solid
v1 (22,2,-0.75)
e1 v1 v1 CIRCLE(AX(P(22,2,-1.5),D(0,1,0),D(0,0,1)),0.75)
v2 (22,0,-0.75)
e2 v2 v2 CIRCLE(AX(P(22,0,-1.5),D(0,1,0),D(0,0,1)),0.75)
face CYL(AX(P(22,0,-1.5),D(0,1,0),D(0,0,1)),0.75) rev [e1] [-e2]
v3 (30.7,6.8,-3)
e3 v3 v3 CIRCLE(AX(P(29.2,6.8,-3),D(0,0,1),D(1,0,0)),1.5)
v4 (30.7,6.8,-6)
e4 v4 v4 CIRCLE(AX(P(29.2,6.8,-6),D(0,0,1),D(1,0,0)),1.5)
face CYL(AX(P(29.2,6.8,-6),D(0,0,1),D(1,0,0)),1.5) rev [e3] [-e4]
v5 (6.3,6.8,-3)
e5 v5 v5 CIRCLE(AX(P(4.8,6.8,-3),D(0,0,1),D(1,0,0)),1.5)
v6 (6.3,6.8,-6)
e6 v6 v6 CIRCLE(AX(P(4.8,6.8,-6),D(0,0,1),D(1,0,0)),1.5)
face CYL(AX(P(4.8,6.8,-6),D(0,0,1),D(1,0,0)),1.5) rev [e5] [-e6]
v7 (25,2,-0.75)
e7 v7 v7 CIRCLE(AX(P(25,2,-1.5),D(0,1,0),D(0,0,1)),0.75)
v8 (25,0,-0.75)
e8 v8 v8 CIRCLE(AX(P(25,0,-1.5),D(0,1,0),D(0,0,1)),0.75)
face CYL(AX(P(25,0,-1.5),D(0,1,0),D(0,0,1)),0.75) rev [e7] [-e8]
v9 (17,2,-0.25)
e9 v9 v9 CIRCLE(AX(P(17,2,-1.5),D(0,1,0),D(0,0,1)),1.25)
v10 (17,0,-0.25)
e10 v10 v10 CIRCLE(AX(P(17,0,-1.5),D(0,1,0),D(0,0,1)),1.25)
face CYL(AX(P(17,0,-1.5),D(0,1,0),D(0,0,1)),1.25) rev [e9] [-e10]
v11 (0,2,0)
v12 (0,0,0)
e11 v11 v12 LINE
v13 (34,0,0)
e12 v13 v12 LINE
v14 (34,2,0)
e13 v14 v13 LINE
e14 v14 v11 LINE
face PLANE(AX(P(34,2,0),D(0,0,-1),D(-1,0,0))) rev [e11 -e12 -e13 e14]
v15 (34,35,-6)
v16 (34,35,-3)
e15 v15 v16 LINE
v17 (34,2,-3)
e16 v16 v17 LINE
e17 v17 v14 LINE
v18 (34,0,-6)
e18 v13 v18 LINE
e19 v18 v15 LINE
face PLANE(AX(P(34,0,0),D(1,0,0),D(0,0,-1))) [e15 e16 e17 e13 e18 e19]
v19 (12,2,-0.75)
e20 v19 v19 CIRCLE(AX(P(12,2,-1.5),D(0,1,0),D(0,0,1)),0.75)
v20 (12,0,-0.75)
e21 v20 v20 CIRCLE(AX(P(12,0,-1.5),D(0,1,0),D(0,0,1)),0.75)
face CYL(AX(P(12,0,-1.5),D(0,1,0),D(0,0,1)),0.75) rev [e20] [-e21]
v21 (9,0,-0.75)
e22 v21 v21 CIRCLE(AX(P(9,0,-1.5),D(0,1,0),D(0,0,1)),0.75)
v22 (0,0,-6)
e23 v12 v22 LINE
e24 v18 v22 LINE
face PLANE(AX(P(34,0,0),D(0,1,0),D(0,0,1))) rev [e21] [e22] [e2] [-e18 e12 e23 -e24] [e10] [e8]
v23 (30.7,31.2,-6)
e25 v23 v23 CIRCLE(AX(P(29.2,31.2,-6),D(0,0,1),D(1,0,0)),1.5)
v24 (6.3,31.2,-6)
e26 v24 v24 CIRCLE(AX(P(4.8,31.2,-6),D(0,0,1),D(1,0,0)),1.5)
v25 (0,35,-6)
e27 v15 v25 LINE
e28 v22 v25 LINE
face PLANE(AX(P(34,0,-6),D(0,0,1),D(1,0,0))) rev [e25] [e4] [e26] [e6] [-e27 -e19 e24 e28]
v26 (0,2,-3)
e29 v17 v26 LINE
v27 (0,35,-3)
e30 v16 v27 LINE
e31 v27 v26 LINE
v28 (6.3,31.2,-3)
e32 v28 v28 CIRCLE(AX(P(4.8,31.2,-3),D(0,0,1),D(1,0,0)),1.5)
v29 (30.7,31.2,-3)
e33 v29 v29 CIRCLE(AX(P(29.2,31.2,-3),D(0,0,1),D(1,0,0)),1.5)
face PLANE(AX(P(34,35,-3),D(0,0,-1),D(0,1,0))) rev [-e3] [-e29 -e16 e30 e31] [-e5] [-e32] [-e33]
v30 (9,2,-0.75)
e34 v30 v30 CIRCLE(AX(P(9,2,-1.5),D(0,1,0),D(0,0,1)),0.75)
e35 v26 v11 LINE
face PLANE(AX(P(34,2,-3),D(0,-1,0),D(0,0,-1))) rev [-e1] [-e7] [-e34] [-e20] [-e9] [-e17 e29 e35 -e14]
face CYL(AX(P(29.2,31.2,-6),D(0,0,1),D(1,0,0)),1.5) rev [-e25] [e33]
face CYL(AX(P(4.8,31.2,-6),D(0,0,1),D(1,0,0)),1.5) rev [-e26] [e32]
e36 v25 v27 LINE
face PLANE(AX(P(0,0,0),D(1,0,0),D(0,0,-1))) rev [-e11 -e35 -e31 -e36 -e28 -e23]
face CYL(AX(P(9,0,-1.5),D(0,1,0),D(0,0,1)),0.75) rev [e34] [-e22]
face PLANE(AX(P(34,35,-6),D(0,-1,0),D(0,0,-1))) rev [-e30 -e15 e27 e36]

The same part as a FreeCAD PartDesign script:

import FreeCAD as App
import Part
import Sketcher
Q = App.Units.Quantity

doc = App.newDocument("Part")
body = doc.addObject("PartDesign::Body", "Body")

sketch1 = body.newObject("Sketcher::SketchObject", "Sketch")
sketch1.AttachmentSupport = (doc.getObject("YZ_Plane"), [""])
sketch1.MapMode = "FlatFace"
sketch1.addGeometry([
    Part.LineSegment(App.Vector(0, 0, 0), App.Vector(0, -6, 0)),
    Part.LineSegment(App.Vector(0, -6, 0), App.Vector(35, -6, 0)),
    Part.LineSegment(App.Vector(35, -6, 0), App.Vector(35, -3, 0)),
    Part.LineSegment(App.Vector(35, -3, 0), App.Vector(2, -3, 0)),
    Part.LineSegment(App.Vector(2, -3, 0), App.Vector(2, 0, 0)),
    Part.LineSegment(App.Vector(2, 0, 0), App.Vector(0, 0, 0)),
], False)
sketch1.addConstraint([
    Sketcher.Constraint("Coincident", 0, 2, 1, 1),
    Sketcher.Constraint("Coincident", 1, 2, 2, 1),
    Sketcher.Constraint("Coincident", 2, 2, 3, 1),
    Sketcher.Constraint("Coincident", 3, 2, 4, 1),
    Sketcher.Constraint("Coincident", 4, 2, 5, 1),
    Sketcher.Constraint("Coincident", 5, 2, 0, 1),
    Sketcher.Constraint("Vertical", 0),
    Sketcher.Constraint("Horizontal", 1),
    Sketcher.Constraint("Vertical", 2),
    Sketcher.Constraint("Horizontal", 3),
    Sketcher.Constraint("Vertical", 4),
    Sketcher.Constraint("Horizontal", 5),
    Sketcher.Constraint("Coincident", 5, 2, -1, 1),
    Sketcher.Constraint("Equal", 2, 4),
    Sketcher.Constraint("DistanceX", 1, 1, 1, 2, Q("35 mm")),
    Sketcher.Constraint("DistanceX", 3, 2, 3, 1, Q("33 mm")),
    Sketcher.Constraint("DistanceY", 0, 2, 0, 1, Q("6 mm")),
])
pad1 = body.newObject("PartDesign::Pad", "Pad")
pad1.Profile = sketch1
pad1.Length = 34

sketch2 = body.newObject("Sketcher::SketchObject", "Sketch001")
sketch2.AttachmentSupport = (doc.getObject("XY_Plane"), [""])
sketch2.MapMode = "FlatFace"
sketch2.AttachmentOffset = App.Placement(App.Vector(0, 0, -3), App.Rotation())
sketch2.addGeometry([
    Part.Circle(App.Vector(29.2, 31.2, 0), App.Vector(0, 0, 1), 1.5),
    Part.Circle(App.Vector(4.8, 31.2, 0), App.Vector(0, 0, 1), 1.5),
    Part.Circle(App.Vector(4.8, 6.8, 0), App.Vector(0, 0, 1), 1.5),
    Part.Circle(App.Vector(29.2, 6.8, 0), App.Vector(0, 0, 1), 1.5),
], False)
sketch2.addConstraint([
    Sketcher.Constraint("Equal", 0, 1),
    Sketcher.Constraint("Equal", 1, 2),
    Sketcher.Constraint("Equal", 2, 3),
    Sketcher.Constraint("Horizontal", 0, 3, 1, 3),
    Sketcher.Constraint("Horizontal", 2, 3, 3, 3),
    Sketcher.Constraint("Vertical", 1, 3, 2, 3),
    Sketcher.Constraint("Vertical", 0, 3, 3, 3),
    Sketcher.Constraint("Diameter", 0, Q("3 mm")),
    Sketcher.Constraint("DistanceX", -1, 1, 0, 3, Q("29.2 mm")),
    Sketcher.Constraint("DistanceY", -1, 1, 0, 3, Q("31.2 mm")),
    Sketcher.Constraint("DistanceX", -1, 1, 1, 3, Q("4.8 mm")),
    Sketcher.Constraint("DistanceY", -1, 1, 2, 3, Q("6.8 mm")),
])
pocket1 = body.newObject("PartDesign::Pocket", "Pocket")
pocket1.Profile = sketch2
pocket1.Type = "ThroughAll"

sketch3 = body.newObject("Sketcher::SketchObject", "Sketch002")
sketch3.AttachmentSupport = (doc.getObject("XZ_Plane"), [""])
sketch3.MapMode = "FlatFace"
sketch3.AttachmentOffset = App.Placement(App.Vector(0, 0, -2), App.Rotation())
sketch3.addGeometry([
    Part.Circle(App.Vector(17, -1.5, 0), App.Vector(0, 0, 1), 1.2),
    Part.Circle(App.Vector(22, -1.5, 0), App.Vector(0, 0, 1), 0.8),
    Part.Circle(App.Vector(25, -1.5, 0), App.Vector(0, 0, 1), 0.8),
    Part.Circle(App.Vector(12, -1.5, 0), App.Vector(0, 0, 1), 0.8),
    Part.Circle(App.Vector(9, -1.5, 0), App.Vector(0, 0, 1), 0.8),
], False)
sketch3.addConstraint([
    Sketcher.Constraint("Equal", 1, 2),
    Sketcher.Constraint("Equal", 2, 3),
    Sketcher.Constraint("Equal", 3, 4),
    Sketcher.Constraint("Horizontal", 0, 3, 1, 3),
    Sketcher.Constraint("Horizontal", 1, 3, 2, 3),
    Sketcher.Constraint("Horizontal", 2, 3, 3, 3),
    Sketcher.Constraint("Horizontal", 3, 3, 4, 3),
    Sketcher.Constraint("Diameter", 0, Q("2.5 mm")),
    Sketcher.Constraint("Diameter", 1, Q("1.5 mm")),
    Sketcher.Constraint("DistanceX", -1, 1, 0, 3, Q("17 mm")),
    Sketcher.Constraint("DistanceX", -1, 1, 1, 3, Q("22 mm")),
    Sketcher.Constraint("DistanceX", -1, 1, 2, 3, Q("25 mm")),
    Sketcher.Constraint("DistanceX", -1, 1, 3, 3, Q("12 mm")),
    Sketcher.Constraint("DistanceX", -1, 1, 4, 3, Q("9 mm")),
    Sketcher.Constraint("DistanceY", 0, 3, -1, 1, Q("1.5 mm")),
])
pocket2 = body.newObject("PartDesign::Pocket", "Pocket001")
pocket2.Profile = sketch3
pocket2.Type = "ThroughAll"
pocket2.Reversed = True

doc.recompute()
